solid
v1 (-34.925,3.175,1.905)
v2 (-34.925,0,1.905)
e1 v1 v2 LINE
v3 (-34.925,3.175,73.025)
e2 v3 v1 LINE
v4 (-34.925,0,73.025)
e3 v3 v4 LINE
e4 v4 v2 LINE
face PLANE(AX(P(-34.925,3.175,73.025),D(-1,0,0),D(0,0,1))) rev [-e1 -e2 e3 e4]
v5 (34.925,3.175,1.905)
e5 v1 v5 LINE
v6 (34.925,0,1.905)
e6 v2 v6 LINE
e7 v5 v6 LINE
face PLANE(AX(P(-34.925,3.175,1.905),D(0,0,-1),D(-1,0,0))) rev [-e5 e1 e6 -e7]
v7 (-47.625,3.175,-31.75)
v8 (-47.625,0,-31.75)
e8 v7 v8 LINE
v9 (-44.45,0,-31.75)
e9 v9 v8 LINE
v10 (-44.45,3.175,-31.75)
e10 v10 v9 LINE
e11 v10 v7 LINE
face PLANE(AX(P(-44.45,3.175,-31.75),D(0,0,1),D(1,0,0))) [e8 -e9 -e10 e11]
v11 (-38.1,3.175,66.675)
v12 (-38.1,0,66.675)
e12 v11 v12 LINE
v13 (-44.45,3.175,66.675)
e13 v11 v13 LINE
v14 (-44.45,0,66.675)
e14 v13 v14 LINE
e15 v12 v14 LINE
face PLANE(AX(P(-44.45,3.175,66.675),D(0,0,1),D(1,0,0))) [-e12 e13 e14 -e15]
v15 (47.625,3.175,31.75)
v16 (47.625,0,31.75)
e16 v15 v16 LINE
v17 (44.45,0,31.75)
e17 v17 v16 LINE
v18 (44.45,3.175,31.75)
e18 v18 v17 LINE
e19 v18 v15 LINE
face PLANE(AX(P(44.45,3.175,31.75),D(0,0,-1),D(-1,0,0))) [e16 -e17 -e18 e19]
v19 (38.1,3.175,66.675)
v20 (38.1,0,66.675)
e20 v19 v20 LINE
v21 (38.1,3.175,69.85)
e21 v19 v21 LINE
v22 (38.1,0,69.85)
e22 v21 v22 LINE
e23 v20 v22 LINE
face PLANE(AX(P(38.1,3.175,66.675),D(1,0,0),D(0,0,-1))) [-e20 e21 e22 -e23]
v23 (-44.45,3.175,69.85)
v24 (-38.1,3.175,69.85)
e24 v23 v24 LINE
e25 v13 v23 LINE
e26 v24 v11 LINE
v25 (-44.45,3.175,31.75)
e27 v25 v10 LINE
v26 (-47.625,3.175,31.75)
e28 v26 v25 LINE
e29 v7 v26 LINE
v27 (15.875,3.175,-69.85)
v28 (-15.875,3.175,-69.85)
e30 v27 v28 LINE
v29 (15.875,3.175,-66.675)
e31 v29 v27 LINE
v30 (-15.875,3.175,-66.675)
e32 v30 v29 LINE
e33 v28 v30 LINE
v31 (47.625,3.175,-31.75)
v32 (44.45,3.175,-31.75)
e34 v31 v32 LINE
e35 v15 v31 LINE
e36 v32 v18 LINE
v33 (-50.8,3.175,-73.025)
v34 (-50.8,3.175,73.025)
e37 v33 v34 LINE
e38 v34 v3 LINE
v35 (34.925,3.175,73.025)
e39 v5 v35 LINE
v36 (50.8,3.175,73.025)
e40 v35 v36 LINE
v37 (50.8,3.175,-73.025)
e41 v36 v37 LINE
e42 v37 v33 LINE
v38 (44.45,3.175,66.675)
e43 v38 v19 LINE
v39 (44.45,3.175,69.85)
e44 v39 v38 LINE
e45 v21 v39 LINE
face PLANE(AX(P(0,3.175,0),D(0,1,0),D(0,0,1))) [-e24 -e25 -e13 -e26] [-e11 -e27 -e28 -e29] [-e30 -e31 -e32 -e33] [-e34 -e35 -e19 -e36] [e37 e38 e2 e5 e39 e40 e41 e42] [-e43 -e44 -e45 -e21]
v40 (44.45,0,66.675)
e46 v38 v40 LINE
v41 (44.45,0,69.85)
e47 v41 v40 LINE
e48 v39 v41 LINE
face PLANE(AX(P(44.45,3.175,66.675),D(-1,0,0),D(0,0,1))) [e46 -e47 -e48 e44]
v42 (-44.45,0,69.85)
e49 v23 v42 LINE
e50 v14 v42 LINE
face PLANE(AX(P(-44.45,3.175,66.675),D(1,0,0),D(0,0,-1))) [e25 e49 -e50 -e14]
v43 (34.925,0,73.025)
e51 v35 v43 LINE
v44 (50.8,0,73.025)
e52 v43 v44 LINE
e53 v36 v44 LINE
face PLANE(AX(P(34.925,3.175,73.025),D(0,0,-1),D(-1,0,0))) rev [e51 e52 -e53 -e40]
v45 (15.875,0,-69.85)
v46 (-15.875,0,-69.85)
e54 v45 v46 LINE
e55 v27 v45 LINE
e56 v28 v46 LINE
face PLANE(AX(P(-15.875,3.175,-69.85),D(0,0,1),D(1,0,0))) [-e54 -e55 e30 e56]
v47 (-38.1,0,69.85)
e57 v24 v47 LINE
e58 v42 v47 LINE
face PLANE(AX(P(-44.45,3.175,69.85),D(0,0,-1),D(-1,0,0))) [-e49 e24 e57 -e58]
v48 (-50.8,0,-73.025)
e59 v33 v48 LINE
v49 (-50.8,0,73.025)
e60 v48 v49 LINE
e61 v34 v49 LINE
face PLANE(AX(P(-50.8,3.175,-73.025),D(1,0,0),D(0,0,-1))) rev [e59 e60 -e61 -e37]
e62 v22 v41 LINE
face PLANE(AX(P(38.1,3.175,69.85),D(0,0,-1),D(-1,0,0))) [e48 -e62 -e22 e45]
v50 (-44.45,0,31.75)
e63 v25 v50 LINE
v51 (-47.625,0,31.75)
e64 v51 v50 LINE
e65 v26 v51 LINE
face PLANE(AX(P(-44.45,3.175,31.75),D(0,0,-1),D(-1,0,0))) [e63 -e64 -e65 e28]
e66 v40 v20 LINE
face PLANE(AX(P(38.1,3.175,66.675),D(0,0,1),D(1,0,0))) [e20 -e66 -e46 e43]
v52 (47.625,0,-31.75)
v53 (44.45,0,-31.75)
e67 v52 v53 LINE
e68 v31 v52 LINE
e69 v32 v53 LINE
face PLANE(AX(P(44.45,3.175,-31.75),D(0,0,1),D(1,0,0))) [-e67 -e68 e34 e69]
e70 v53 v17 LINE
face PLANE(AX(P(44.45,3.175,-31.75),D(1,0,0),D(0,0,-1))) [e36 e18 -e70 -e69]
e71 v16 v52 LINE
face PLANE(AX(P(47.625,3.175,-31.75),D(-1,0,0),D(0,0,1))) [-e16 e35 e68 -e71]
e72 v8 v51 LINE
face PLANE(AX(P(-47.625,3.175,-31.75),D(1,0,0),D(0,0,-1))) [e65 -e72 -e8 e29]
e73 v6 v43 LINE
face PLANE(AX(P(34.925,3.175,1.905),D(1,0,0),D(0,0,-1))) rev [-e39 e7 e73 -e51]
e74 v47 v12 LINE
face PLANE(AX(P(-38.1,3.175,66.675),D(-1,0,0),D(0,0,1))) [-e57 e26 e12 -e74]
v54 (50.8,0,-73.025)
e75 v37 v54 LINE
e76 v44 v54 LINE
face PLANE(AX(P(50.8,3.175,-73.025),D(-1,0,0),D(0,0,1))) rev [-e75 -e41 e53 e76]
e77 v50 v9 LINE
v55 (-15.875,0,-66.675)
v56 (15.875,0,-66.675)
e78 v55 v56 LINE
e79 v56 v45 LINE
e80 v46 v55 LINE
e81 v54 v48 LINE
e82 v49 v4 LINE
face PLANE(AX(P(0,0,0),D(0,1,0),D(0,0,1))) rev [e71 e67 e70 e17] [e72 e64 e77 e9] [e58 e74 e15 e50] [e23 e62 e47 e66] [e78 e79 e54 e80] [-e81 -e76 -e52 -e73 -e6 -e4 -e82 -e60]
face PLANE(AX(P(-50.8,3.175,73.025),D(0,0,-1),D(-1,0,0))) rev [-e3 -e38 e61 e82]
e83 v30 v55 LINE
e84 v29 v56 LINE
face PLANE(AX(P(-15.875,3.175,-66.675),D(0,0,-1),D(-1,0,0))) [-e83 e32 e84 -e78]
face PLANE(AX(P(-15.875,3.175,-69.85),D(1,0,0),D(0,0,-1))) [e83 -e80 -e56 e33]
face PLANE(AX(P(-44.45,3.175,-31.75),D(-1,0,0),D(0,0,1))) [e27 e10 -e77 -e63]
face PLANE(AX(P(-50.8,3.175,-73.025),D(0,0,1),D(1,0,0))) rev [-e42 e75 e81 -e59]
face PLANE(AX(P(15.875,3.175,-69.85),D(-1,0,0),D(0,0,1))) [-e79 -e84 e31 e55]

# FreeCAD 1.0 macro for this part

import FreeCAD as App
import Part
import Sketcher

V = App.Vector
Q = App.Units.Quantity


def add_polygon(sketch, points):
    """Adds a closed chain of lines whose ends are joined by coincident constraints."""
    first, n = sketch.GeometryCount, len(points)
    for a, b in zip(points, points[1:] + points[:1]):
        sketch.addGeometry(Part.LineSegment(App.Vector(*a, 0), App.Vector(*b, 0)), False)
    for i in range(n):
        sketch.addConstraint(Sketcher.Constraint("Coincident", first + i, 2, first + (i + 1) % n, 1))

doc = App.newDocument("Part")
body = doc.addObject("PartDesign::Body", "Body")

sketch1 = body.newObject("Sketcher::SketchObject", "Sketch")
sketch1.AttachmentSupport = (doc.getObject("XZ_Plane"), [""])
sketch1.MapMode = "FlatFace"
add_polygon(sketch1, [(50.8, -73), (-50.8, -73), (-50.8, 73), (-34.9, 73), (-34.9, 1.9), (34.9, 1.9), (34.9, 73), (50.8, 73)])
add_polygon(sketch1, [(38.1, 69.8), (38.1, 66.7), (44.5, 66.7), (44.5, 69.8)])
add_polygon(sketch1, [(-44.5, 69.8), (-44.5, 66.7), (-38.1, 66.7), (-38.1, 69.8)])
add_polygon(sketch1, [(44.5, 31.8), (44.5, -31.8), (47.6, -31.8), (47.6, 31.8)])
add_polygon(sketch1, [(-47.6, 31.8), (-47.6, -31.8), (-44.5, -31.8), (-44.5, 31.8)])
add_polygon(sketch1, [(-15.9, -66.7), (-15.9, -69.8), (15.9, -69.8), (15.9, -66.7)])
sketch1.addConstraint([
    Sketcher.Constraint("Horizontal", 0),
    Sketcher.Constraint("Vertical", 1),
    Sketcher.Constraint("Horizontal", 2),
    Sketcher.Constraint("Vertical", 3),
    Sketcher.Constraint("Horizontal", 4),
    Sketcher.Constraint("Vertical", 5),
    Sketcher.Constraint("Horizontal", 6),
    Sketcher.Constraint("Vertical", 7),
    Sketcher.Constraint("Vertical", 8),
    Sketcher.Constraint("Horizontal", 9),
    Sketcher.Constraint("Vertical", 10),
    Sketcher.Constraint("Horizontal", 11),
    Sketcher.Constraint("Vertical", 12),
    Sketcher.Constraint("Horizontal", 13),
    Sketcher.Constraint("Vertical", 14),
    Sketcher.Constraint("Horizontal", 15),
    Sketcher.Constraint("Vertical", 16),
    Sketcher.Constraint("Horizontal", 17),
    Sketcher.Constraint("Vertical", 18),
    Sketcher.Constraint("Horizontal", 19),
    Sketcher.Constraint("Vertical", 20),
    Sketcher.Constraint("Horizontal", 21),
    Sketcher.Constraint("Vertical", 22),
    Sketcher.Constraint("Horizontal", 23),
    Sketcher.Constraint("Vertical", 24),
    Sketcher.Constraint("Horizontal", 25),
    Sketcher.Constraint("Vertical", 26),
    Sketcher.Constraint("Horizontal", 27),
    Sketcher.Constraint("Symmetric", 0, 2, 6, 2, -1, 1),
    Sketcher.Constraint("Symmetric", 18, 2, 20, 2, -1, 1),
    Sketcher.Constraint("Symmetric", 16, 2, 22, 2, -1, 1),
    Sketcher.Constraint("Symmetric", 2, 2, 5, 2, -2),
    Sketcher.Constraint("Symmetric", 9, 2, 12, 2, -2),
    Sketcher.Constraint("Symmetric", 11, 2, 14, 2, -2),
    Sketcher.Constraint("Horizontal", 17, 2, 20, 2),
    Sketcher.Constraint("Vertical", 10, 2, 16, 2),
    Sketcher.Constraint("Equal", 23, 8),
    Sketcher.Constraint("Equal", 14, 24),
    Sketcher.Constraint("DistanceX", 0, 2, 0, 1, Q("4 in")),
    Sketcher.Constraint("DistanceY", 3, 2, 3, 1, Q("2.8 in")),
    Sketcher.Constraint("DistanceY", 16, 2, 16, 1, Q("2.5 in")),
    Sketcher.Constraint("DistanceX", 4, 1, 4, 2, Q("2.75 in")),
    Sketcher.Constraint("DistanceX", 9, 1, 9, 2, Q("0.25 in")),
    Sketcher.Constraint("DistanceX", 25, 1, 25, 2, Q("1.25 in")),
    Sketcher.Constraint("DistanceY", 1, 1, 1, 2, Q("5.75 in")),
    Sketcher.Constraint("DistanceX", -1, 1, 8, 2, Q("1.5 in")),
    Sketcher.Constraint("DistanceX", 4, 2, 17, 2, Q("0.5 in")),
    Sketcher.Constraint("DistanceY", 18, 2, 10, 2, Q("1.5 in")),
    Sketcher.Constraint("DistanceY", 24, 2, 21, 2, Q("1.5 in")),
    Sketcher.Constraint("DistanceX", 20, 2, 24, 2, Q("1.25 in")),
])
pad1 = body.newObject("PartDesign::Pad", "Pad")
pad1.Profile = sketch1
pad1.Length = Q("0.125 in")
pad1.Reversed = True

doc.recompute()
